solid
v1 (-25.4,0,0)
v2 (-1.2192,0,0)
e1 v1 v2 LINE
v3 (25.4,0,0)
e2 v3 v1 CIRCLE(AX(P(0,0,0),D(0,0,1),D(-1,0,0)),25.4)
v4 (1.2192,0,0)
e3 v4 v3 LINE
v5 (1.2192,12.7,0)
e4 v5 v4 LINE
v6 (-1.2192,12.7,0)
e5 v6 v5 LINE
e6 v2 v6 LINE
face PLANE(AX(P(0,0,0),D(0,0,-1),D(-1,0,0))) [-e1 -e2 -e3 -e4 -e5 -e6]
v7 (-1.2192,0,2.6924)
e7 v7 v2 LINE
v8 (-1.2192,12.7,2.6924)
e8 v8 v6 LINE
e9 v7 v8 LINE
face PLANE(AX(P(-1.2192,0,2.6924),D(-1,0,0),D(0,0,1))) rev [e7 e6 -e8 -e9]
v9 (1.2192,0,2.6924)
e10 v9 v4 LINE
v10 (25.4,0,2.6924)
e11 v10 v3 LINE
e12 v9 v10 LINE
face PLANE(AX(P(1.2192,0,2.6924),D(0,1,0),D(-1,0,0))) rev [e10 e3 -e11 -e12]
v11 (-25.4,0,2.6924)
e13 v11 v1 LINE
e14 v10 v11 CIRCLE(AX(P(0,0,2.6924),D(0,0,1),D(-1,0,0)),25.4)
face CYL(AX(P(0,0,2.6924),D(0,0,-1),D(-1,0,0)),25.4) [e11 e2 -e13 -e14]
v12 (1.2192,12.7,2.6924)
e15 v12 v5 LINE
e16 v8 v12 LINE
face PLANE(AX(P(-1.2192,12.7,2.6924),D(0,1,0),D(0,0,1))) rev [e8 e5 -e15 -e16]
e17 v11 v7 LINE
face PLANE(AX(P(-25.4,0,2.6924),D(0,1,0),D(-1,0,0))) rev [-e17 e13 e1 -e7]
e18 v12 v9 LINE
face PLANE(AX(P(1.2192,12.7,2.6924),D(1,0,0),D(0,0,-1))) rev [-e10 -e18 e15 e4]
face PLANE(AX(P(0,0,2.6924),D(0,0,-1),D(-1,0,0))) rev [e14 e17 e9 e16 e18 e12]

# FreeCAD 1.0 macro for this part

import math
import FreeCAD as App
import Part
import Sketcher
Q = App.Units.Quantity

doc = App.newDocument("Part")
body = doc.addObject("PartDesign::Body", "Body")

# Sketch on XY plane
sketch1 = body.newObject("Sketcher::SketchObject", "Sketch")
sketch1.AttachmentSupport = (doc.getObject("XY_Plane"), [""])
sketch1.MapMode = "FlatFace"
sketch1.addGeometry(Part.LineSegment(App.Vector(-25.4, 0, 0), App.Vector(-1.2, 0, 0)), False)
sketch1.addGeometry(Part.LineSegment(App.Vector(-1.2, 0, 0), App.Vector(-1.2, 12.7, 0)), False)
sketch1.addGeometry(Part.LineSegment(App.Vector(-1.2, 12.7, 0), App.Vector(1.2, 12.7, 0)), False)
sketch1.addGeometry(Part.LineSegment(App.Vector(1.2, 12.7, 0), App.Vector(1.2, 0, 0)), False)
sketch1.addGeometry(Part.LineSegment(App.Vector(1.2, 0, 0), App.Vector(25.4, 0, 0)), False)
sketch1.addGeometry(Part.ArcOfCircle(Part.Circle(App.Vector(0, 0, 0), App.Vector(0, 0, 1), 25.4), math.radians(0), math.radians(180)), False)
sketch1.addConstraint(Sketcher.Constraint("Coincident", 0, 2, 1, 1))
sketch1.addConstraint(Sketcher.Constraint("Coincident", 1, 2, 2, 1))
sketch1.addConstraint(Sketcher.Constraint("Coincident", 2, 2, 3, 1))
sketch1.addConstraint(Sketcher.Constraint("Coincident", 3, 2, 4, 1))
sketch1.addConstraint(Sketcher.Constraint("Coincident", 4, 2, 5, 1))
sketch1.addConstraint(Sketcher.Constraint("Coincident", 5, 2, 0, 1))
sketch1.addConstraint(Sketcher.Constraint("Horizontal", 0))
sketch1.addConstraint(Sketcher.Constraint("Vertical", 1))
sketch1.addConstraint(Sketcher.Constraint("Horizontal", 2))
sketch1.addConstraint(Sketcher.Constraint("Vertical", 3))
sketch1.addConstraint(Sketcher.Constraint("Horizontal", 4))
sketch1.addConstraint(Sketcher.Constraint("Coincident", 5, 3, -1, 1))
sketch1.addConstraint(Sketcher.Constraint("Symmetric", 0, 2, 3, 2, -1, 1))
sketch1.addConstraint(Sketcher.Constraint("PointOnObject", 0, 2, -1))
sketch1.addConstraint(Sketcher.Constraint("Radius", 5, Q("1 in")))
sketch1.addConstraint(Sketcher.Constraint("DistanceY", 1, 1, 1, 2, Q("0.5 in")))
sketch1.addConstraint(Sketcher.Constraint("DistanceX", 0, 1, 0, 2, Q("0.952 in")))
pad1 = body.newObject("PartDesign::Pad", "Pad")
pad1.Profile = sketch1
pad1.Length = Q("0.106 in")

doc.recompute()
